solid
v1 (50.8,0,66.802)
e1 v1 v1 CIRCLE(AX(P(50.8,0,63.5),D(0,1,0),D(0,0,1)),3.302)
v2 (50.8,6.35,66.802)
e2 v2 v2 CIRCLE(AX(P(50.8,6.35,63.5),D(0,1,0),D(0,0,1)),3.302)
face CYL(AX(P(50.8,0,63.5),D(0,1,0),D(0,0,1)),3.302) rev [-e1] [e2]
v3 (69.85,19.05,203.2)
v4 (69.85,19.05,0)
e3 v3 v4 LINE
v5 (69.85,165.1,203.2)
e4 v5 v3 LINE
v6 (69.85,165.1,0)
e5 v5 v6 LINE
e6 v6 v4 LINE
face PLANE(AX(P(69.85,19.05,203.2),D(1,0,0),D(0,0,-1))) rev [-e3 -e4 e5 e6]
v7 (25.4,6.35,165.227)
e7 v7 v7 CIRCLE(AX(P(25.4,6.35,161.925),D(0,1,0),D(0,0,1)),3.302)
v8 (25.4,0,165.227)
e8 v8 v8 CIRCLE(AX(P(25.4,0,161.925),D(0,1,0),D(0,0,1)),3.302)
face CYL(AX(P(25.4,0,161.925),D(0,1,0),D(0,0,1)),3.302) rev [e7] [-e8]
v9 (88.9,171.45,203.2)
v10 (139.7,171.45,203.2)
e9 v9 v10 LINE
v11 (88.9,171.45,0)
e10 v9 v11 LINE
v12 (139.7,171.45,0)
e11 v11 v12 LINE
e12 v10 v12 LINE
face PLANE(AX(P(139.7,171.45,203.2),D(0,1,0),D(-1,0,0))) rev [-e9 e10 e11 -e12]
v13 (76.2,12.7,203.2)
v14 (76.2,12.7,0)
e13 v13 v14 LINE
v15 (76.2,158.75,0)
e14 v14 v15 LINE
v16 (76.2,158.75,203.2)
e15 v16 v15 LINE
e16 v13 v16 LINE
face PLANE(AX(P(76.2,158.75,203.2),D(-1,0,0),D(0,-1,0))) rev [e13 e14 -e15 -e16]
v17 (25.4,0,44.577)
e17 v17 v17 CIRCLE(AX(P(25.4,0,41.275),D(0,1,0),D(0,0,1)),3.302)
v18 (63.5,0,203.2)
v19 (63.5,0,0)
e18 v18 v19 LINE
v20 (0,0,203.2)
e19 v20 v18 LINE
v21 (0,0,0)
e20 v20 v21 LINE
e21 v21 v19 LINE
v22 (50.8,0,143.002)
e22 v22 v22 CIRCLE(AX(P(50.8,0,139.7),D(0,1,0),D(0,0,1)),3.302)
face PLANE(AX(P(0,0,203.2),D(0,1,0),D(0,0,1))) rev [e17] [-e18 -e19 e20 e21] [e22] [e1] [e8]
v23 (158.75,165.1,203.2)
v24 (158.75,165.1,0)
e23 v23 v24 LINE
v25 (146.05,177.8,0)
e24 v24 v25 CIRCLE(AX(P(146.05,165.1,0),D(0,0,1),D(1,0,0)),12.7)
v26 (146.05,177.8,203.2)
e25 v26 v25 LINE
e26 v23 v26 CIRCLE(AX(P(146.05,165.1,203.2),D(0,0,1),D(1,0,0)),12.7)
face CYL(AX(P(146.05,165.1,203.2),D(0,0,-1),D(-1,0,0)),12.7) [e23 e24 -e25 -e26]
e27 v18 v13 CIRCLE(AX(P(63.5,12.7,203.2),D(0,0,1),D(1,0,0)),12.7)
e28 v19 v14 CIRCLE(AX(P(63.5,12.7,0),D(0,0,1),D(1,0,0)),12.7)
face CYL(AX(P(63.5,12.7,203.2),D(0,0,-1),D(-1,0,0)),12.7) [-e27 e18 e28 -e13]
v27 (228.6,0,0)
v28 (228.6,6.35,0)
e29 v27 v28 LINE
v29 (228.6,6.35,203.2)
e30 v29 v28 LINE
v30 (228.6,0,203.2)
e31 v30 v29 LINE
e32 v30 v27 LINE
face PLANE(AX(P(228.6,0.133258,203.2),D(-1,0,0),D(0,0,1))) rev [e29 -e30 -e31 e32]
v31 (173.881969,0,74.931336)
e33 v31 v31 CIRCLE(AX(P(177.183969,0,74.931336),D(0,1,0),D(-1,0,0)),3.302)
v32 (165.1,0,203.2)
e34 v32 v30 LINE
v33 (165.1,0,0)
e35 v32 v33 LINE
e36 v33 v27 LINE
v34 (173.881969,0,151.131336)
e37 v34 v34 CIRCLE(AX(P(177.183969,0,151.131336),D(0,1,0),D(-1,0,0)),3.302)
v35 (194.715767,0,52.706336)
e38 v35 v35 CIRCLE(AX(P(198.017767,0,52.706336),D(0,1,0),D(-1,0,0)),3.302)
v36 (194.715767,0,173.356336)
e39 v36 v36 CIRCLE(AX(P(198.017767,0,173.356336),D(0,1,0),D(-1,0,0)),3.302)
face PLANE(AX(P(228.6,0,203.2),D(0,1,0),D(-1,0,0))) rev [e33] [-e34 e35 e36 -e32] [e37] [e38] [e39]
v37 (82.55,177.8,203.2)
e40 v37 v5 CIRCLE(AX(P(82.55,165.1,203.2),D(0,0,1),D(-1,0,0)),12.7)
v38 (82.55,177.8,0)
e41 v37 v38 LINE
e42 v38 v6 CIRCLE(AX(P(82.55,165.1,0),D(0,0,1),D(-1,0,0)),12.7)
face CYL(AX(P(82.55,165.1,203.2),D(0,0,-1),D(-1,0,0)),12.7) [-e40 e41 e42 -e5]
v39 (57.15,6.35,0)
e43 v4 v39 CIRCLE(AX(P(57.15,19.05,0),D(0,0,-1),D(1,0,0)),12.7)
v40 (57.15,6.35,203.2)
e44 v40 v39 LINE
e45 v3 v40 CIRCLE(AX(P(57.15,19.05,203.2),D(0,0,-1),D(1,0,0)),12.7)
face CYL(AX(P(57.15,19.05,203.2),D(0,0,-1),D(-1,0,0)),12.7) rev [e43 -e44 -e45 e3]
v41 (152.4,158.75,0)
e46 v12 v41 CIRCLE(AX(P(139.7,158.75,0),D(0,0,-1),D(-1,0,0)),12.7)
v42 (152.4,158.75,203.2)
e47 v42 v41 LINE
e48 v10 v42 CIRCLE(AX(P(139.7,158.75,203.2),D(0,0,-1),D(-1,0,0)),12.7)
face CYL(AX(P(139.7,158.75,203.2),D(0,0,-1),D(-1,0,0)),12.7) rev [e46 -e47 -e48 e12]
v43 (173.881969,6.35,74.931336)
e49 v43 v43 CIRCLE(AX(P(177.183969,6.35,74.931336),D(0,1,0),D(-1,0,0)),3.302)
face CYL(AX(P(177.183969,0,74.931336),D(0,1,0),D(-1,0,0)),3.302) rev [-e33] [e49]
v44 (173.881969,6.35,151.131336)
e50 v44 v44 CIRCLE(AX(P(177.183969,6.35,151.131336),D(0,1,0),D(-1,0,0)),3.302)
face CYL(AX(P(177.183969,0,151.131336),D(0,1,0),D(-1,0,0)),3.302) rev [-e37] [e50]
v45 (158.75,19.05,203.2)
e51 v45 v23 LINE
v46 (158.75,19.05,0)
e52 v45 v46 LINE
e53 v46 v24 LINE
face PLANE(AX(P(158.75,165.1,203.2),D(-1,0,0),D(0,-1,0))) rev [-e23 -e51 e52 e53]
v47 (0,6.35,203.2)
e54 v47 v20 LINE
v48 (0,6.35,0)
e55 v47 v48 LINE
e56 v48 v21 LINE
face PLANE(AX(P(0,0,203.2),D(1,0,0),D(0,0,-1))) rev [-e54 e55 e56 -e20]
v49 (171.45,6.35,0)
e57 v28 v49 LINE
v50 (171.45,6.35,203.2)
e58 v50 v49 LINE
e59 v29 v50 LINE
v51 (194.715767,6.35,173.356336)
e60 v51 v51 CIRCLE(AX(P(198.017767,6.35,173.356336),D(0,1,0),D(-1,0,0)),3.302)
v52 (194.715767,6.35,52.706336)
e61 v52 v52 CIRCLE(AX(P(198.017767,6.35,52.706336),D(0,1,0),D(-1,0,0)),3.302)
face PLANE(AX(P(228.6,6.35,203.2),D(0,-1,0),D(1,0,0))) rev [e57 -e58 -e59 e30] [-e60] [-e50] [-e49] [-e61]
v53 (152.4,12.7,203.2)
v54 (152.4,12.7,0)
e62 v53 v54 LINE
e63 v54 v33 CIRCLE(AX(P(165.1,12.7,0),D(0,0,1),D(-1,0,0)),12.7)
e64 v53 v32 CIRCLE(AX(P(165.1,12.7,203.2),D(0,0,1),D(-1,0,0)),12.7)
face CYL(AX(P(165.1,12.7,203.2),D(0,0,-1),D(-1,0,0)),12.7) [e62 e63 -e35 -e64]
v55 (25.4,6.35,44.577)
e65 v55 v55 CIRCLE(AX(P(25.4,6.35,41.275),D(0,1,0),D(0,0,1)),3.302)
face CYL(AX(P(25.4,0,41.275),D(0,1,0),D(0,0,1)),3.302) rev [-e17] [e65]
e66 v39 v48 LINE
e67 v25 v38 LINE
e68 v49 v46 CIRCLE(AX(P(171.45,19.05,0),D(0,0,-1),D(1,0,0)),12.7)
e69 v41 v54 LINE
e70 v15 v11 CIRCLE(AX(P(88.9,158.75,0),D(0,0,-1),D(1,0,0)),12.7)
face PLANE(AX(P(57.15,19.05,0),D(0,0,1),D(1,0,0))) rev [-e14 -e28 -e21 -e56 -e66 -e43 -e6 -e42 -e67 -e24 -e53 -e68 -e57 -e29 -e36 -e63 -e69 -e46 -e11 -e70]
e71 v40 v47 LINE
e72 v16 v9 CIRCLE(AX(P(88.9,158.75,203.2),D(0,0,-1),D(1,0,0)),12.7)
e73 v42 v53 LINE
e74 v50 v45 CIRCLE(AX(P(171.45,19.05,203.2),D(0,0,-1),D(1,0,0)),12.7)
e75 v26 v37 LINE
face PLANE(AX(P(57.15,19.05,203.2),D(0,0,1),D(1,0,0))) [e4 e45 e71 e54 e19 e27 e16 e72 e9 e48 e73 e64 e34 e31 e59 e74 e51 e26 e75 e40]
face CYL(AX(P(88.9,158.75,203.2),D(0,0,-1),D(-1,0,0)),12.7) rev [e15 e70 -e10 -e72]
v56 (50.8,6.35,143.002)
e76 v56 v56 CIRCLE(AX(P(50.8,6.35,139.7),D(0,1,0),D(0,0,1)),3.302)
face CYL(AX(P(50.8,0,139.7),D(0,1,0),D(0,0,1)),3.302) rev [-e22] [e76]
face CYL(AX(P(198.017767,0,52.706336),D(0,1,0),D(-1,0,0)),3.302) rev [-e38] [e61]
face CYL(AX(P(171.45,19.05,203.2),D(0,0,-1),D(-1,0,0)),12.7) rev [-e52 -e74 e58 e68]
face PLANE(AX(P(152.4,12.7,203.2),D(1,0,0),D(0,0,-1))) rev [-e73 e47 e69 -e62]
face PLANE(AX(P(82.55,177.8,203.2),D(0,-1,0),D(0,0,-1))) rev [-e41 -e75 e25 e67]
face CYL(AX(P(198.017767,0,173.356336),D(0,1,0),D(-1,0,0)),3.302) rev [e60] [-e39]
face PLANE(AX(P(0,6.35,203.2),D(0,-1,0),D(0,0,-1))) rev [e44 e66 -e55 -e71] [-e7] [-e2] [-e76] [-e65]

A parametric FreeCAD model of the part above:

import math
import FreeCAD as App
import Part
import Sketcher
from FreeCAD import Vector
Q = App.Units.Quantity

doc = App.newDocument("Part")
params = doc.addObject("Spreadsheet::Sheet", "Params")
for row, (alias, value) in enumerate([
    ("sketch1_radius", "0.5 in"),
    ("sketch1_width", "2 in"),
    ("sketch1_width2", "2.5 in"),
    ("sketch1_height", "5.75 in"),
    ("pad1_length", "8 in"),
    ("sketch2_diameter", "0.26 in"),
    ("pocket1_length", "0.25 in"),
    ("sketch3_diameter", "0.26 in"),
    ("pocket2_length", "0.25 in"),
], start=1):
    params.set(f"A{row}", alias)
    params.set(f"B{row}", "=" + value)
    params.setAlias(f"B{row}", alias)

body = doc.addObject("PartDesign::Body", "Body")

# Sketch on XY plane
sketch1 = doc.addObject("Sketcher::SketchObject", "Sketch")
body.addObject(sketch1)
sketch1.AttachmentSupport = (doc.XY_Plane, [""])
sketch1.MapMode = "FlatFace"
sketch1.addGeometry([
    Part.LineSegment(Vector(0, 0, 0), Vector(63.5, 0, 0)),  # 0
    Part.ArcOfCircle(Part.Circle(Vector(63.5, 12.7, 0), Vector(0, 0, 1), 12.7), math.radians(-90), math.radians(0)),  # 1
    Part.LineSegment(Vector(76.2, 12.7, 0), Vector(76.2, 158.75, 0)),  # 2
    Part.ArcOfCircle(Part.Circle(Vector(88.9, 158.75, 0), Vector(0, 0, 1), 12.7), math.radians(90), math.radians(180)),  # 3
    Part.LineSegment(Vector(88.9, 171.45, 0), Vector(139.7, 171.45, 0)),  # 4
    Part.ArcOfCircle(Part.Circle(Vector(139.7, 158.75, 0), Vector(0, 0, 1), 12.7), math.radians(0), math.radians(90)),  # 5
    Part.LineSegment(Vector(152.4, 158.75, 0), Vector(152.4, 12.7, 0)),  # 6
    Part.ArcOfCircle(Part.Circle(Vector(165.1, 12.7, 0), Vector(0, 0, 1), 12.7), math.radians(180), math.radians(270)),  # 7
    Part.LineSegment(Vector(165.1, 0, 0), Vector(228.6, 0, 0)),  # 8
    Part.LineSegment(Vector(228.6, 0, 0), Vector(228.6, 6.35, 0)),  # 9
    Part.LineSegment(Vector(228.6, 6.35, 0), Vector(171.45, 6.35, 0)),  # 10
    Part.ArcOfCircle(Part.Circle(Vector(171.45, 19.05, 0), Vector(0, 0, 1), 12.7), math.radians(180), math.radians(270)),  # 11
    Part.LineSegment(Vector(158.75, 19.05, 0), Vector(158.75, 165.1, 0)),  # 12
    Part.ArcOfCircle(Part.Circle(Vector(146.05, 165.1, 0), Vector(0, 0, 1), 12.7), math.radians(0), math.radians(90)),  # 13
    Part.LineSegment(Vector(146.05, 177.8, 0), Vector(82.55, 177.8, 0)),  # 14
    Part.ArcOfCircle(Part.Circle(Vector(82.55, 165.1, 0), Vector(0, 0, 1), 12.7), math.radians(90), math.radians(180)),  # 15
    Part.LineSegment(Vector(69.85, 165.1, 0), Vector(69.85, 19.05, 0)),  # 16
    Part.ArcOfCircle(Part.Circle(Vector(57.15, 19.05, 0), Vector(0, 0, 1), 12.7), math.radians(-90), math.radians(0)),  # 17
    Part.LineSegment(Vector(57.15, 6.35, 0), Vector(0, 6.35, 0)),  # 18
    Part.LineSegment(Vector(0, 6.35, 0), Vector(0, 0, 0)),  # 19
], False)
sketch1.addConstraint([
    Sketcher.Constraint("Tangent", 0, 2, 1, 1),
    Sketcher.Constraint("Tangent", 1, 2, 2, 1),
    Sketcher.Constraint("Tangent", 2, 2, 3, 2),
    Sketcher.Constraint("Tangent", 3, 1, 4, 1),
    Sketcher.Constraint("Tangent", 4, 2, 5, 2),
    Sketcher.Constraint("Tangent", 5, 1, 6, 1),
    Sketcher.Constraint("Tangent", 6, 2, 7, 1),
    Sketcher.Constraint("Tangent", 7, 2, 8, 1),
    Sketcher.Constraint("Coincident", 8, 2, 9, 1),
    Sketcher.Constraint("Coincident", 9, 2, 10, 1),
    Sketcher.Constraint("Tangent", 10, 2, 11, 2),
    Sketcher.Constraint("Tangent", 11, 1, 12, 1),
    Sketcher.Constraint("Tangent", 12, 2, 13, 1),
    Sketcher.Constraint("Tangent", 13, 2, 14, 1),
    Sketcher.Constraint("Tangent", 14, 2, 15, 1),
    Sketcher.Constraint("Tangent", 15, 2, 16, 1),
    Sketcher.Constraint("Tangent", 16, 2, 17, 2),
    Sketcher.Constraint("Tangent", 17, 1, 18, 1),
    Sketcher.Constraint("Coincident", 18, 2, 19, 1),
    Sketcher.Constraint("Coincident", 19, 2, 0, 1),
    Sketcher.Constraint("Horizontal", 0),
    Sketcher.Constraint("Vertical", 2),
    Sketcher.Constraint("Horizontal", 4),
    Sketcher.Constraint("Vertical", 6),
    Sketcher.Constraint("Horizontal", 8),
    Sketcher.Constraint("Vertical", 9),
    Sketcher.Constraint("Horizontal", 10),
    Sketcher.Constraint("Vertical", 12),
    Sketcher.Constraint("Horizontal", 14),
    Sketcher.Constraint("Vertical", 16),
    Sketcher.Constraint("Horizontal", 18),
    Sketcher.Constraint("Vertical", 19),
    Sketcher.Constraint("Coincident", 19, 2, -1, 1),
    Sketcher.Constraint("Equal", 1, 3),
    Sketcher.Constraint("Equal", 3, 5),
    Sketcher.Constraint("Equal", 5, 7),
    Sketcher.Constraint("Equal", 7, 11),
    Sketcher.Constraint("Equal", 11, 13),
    Sketcher.Constraint("Equal", 13, 15),
    Sketcher.Constraint("Equal", 15, 17),
    Sketcher.Constraint("PointOnObject", 7, 2, -1),
    Sketcher.Constraint("Horizontal", 11, 3, 17, 3),
    Sketcher.Constraint("Equal", 0, 8),
    Sketcher.Constraint("Equal", 8, 14),
    Sketcher.Constraint("Equal", 10, 18),
    Sketcher.Constraint("Equal", 6, 12),
    Sketcher.Constraint("Radius", 1, Q("0.5 in")),
    Sketcher.Constraint("DistanceX", 4, 1, 4, 2, Q("2 in")),
    Sketcher.Constraint("DistanceX", 0, 1, 0, 2, Q("2.5 in")),
    Sketcher.Constraint("DistanceY", -1, 1, 13, 2, Q("7 in")),
    Sketcher.Constraint("DistanceY", 2, 1, 2, 2, Q("5.75 in")),
])
sketch1.setExpression("Constraints[46]", "Params.sketch1_radius")
sketch1.setExpression("Constraints[47]", "Params.sketch1_width")
sketch1.setExpression("Constraints[48]", "Params.sketch1_width2")
sketch1.setExpression("Constraints[50]", "Params.sketch1_height")
pad1 = doc.addObject("PartDesign::Pad", "Pad")
body.addObject(pad1)
pad1.Profile = sketch1
pad1.setExpression("Length", "Params.pad1_length")

# Sketch on XZ plane
sketch2 = doc.addObject("Sketcher::SketchObject", "Sketch001")
body.addObject(sketch2)
sketch2.AttachmentSupport = (doc.XZ_Plane, [""])
sketch2.MapMode = "FlatFace"
sketch2.AttachmentOffset = App.Placement(Vector(0, 0, -0.25 * 25.4), App.Rotation())
sketch2.addGeometry([
    Part.Circle(Vector(25.4, 41.275, 0), Vector(0, 0, 1), 3.302),
    Part.Circle(Vector(50.8, 63.5, 0), Vector(0, 0, 1), 3.302),
    Part.Circle(Vector(25.4, 161.925, 0), Vector(0, 0, 1), 3.302),
    Part.Circle(Vector(50.8, 139.7, 0), Vector(0, 0, 1), 3.302),
], False)
sketch2.addConstraint([
    Sketcher.Constraint("Equal", 0, 1),
    Sketcher.Constraint("Equal", 1, 2),
    Sketcher.Constraint("Equal", 2, 3),
    Sketcher.Constraint("Vertical", 0, 3, 2, 3),
    Sketcher.Constraint("Vertical", 1, 3, 3, 3),
    Sketcher.Constraint("Diameter", 0, Q("0.26 in")),
    Sketcher.Constraint("DistanceX", -1, 1, 0, 3, Q("1 in")),
    Sketcher.Constraint("DistanceX", -1, 1, 1, 3, Q("2 in")),
    Sketcher.Constraint("DistanceY", 1, 3, 3, 3, Q("3 in")),
    Sketcher.Constraint("DistanceY", -1, 1, 1, 3, Q("2.5 in")),
    Sketcher.Constraint("DistanceY", 0, 3, 2, 3, Q("4.75 in")),
    Sketcher.Constraint("DistanceY", -1, 1, 0, 3, Q("1.625 in")),
])
sketch2.setExpression("Constraints[5]", "Params.sketch2_diameter")
pocket1 = doc.addObject("PartDesign::Pocket", "Pocket")
body.addObject(pocket1)
pocket1.Profile = sketch2
pocket1.setExpression("Length", "Params.pocket1_length")
pocket1.Reversed = True

# Sketch on XZ plane
sketch3 = doc.addObject("Sketcher::SketchObject", "Sketch002")
body.addObject(sketch3)
sketch3.AttachmentSupport = (doc.XZ_Plane, [""])
sketch3.MapMode = "FlatFace"
sketch3.AttachmentOffset = App.Placement(Vector(0, 0, -0.25 * 25.4), App.Rotation())
sketch3.addGeometry([
    Part.Circle(Vector(177.183969, 74.931336, 0), Vector(0, 0, 1), 3.302),
    Part.Circle(Vector(177.183969, 151.131336, 0), Vector(0, 0, 1), 3.302),
    Part.Circle(Vector(198.017767, 52.706336, 0), Vector(0, 0, 1), 3.302),
    Part.Circle(Vector(198.017767, 173.356336, 0), Vector(0, 0, 1), 3.302),
], False)
sketch3.addConstraint([
    Sketcher.Constraint("Equal", 0, 1),
    Sketcher.Constraint("Equal", 1, 2),
    Sketcher.Constraint("Equal", 2, 3),
    Sketcher.Constraint("Vertical", 0, 3, 1, 3),
    Sketcher.Constraint("Vertical", 2, 3, 3, 3),
    Sketcher.Constraint("Diameter", 0, Q("0.26 in")),
    Sketcher.Constraint("DistanceY", 0, 3, 1, 3, Q("3 in")),
    Sketcher.Constraint("DistanceY", 2, 3, 3, 3, Q("4.75 in")),
    Sketcher.Constraint("DistanceY", 2, 3, 0, 3, Q("0.875 in")),
    Sketcher.Constraint("DistanceX", 0, 3, 2, 3, 20.833798),
    Sketcher.Constraint("DistanceX", -1, 1, 0, 3, 177.183969),
    Sketcher.Constraint("DistanceY", -1, 1, 0, 3, 74.931336),
])
sketch3.setExpression("Constraints[5]", "Params.sketch3_diameter")
pocket2 = doc.addObject("PartDesign::Pocket", "Pocket001")
body.addObject(pocket2)
pocket2.Profile = sketch3
pocket2.setExpression("Length", "Params.pocket2_length")
pocket2.Reversed = True

doc.recompute()
